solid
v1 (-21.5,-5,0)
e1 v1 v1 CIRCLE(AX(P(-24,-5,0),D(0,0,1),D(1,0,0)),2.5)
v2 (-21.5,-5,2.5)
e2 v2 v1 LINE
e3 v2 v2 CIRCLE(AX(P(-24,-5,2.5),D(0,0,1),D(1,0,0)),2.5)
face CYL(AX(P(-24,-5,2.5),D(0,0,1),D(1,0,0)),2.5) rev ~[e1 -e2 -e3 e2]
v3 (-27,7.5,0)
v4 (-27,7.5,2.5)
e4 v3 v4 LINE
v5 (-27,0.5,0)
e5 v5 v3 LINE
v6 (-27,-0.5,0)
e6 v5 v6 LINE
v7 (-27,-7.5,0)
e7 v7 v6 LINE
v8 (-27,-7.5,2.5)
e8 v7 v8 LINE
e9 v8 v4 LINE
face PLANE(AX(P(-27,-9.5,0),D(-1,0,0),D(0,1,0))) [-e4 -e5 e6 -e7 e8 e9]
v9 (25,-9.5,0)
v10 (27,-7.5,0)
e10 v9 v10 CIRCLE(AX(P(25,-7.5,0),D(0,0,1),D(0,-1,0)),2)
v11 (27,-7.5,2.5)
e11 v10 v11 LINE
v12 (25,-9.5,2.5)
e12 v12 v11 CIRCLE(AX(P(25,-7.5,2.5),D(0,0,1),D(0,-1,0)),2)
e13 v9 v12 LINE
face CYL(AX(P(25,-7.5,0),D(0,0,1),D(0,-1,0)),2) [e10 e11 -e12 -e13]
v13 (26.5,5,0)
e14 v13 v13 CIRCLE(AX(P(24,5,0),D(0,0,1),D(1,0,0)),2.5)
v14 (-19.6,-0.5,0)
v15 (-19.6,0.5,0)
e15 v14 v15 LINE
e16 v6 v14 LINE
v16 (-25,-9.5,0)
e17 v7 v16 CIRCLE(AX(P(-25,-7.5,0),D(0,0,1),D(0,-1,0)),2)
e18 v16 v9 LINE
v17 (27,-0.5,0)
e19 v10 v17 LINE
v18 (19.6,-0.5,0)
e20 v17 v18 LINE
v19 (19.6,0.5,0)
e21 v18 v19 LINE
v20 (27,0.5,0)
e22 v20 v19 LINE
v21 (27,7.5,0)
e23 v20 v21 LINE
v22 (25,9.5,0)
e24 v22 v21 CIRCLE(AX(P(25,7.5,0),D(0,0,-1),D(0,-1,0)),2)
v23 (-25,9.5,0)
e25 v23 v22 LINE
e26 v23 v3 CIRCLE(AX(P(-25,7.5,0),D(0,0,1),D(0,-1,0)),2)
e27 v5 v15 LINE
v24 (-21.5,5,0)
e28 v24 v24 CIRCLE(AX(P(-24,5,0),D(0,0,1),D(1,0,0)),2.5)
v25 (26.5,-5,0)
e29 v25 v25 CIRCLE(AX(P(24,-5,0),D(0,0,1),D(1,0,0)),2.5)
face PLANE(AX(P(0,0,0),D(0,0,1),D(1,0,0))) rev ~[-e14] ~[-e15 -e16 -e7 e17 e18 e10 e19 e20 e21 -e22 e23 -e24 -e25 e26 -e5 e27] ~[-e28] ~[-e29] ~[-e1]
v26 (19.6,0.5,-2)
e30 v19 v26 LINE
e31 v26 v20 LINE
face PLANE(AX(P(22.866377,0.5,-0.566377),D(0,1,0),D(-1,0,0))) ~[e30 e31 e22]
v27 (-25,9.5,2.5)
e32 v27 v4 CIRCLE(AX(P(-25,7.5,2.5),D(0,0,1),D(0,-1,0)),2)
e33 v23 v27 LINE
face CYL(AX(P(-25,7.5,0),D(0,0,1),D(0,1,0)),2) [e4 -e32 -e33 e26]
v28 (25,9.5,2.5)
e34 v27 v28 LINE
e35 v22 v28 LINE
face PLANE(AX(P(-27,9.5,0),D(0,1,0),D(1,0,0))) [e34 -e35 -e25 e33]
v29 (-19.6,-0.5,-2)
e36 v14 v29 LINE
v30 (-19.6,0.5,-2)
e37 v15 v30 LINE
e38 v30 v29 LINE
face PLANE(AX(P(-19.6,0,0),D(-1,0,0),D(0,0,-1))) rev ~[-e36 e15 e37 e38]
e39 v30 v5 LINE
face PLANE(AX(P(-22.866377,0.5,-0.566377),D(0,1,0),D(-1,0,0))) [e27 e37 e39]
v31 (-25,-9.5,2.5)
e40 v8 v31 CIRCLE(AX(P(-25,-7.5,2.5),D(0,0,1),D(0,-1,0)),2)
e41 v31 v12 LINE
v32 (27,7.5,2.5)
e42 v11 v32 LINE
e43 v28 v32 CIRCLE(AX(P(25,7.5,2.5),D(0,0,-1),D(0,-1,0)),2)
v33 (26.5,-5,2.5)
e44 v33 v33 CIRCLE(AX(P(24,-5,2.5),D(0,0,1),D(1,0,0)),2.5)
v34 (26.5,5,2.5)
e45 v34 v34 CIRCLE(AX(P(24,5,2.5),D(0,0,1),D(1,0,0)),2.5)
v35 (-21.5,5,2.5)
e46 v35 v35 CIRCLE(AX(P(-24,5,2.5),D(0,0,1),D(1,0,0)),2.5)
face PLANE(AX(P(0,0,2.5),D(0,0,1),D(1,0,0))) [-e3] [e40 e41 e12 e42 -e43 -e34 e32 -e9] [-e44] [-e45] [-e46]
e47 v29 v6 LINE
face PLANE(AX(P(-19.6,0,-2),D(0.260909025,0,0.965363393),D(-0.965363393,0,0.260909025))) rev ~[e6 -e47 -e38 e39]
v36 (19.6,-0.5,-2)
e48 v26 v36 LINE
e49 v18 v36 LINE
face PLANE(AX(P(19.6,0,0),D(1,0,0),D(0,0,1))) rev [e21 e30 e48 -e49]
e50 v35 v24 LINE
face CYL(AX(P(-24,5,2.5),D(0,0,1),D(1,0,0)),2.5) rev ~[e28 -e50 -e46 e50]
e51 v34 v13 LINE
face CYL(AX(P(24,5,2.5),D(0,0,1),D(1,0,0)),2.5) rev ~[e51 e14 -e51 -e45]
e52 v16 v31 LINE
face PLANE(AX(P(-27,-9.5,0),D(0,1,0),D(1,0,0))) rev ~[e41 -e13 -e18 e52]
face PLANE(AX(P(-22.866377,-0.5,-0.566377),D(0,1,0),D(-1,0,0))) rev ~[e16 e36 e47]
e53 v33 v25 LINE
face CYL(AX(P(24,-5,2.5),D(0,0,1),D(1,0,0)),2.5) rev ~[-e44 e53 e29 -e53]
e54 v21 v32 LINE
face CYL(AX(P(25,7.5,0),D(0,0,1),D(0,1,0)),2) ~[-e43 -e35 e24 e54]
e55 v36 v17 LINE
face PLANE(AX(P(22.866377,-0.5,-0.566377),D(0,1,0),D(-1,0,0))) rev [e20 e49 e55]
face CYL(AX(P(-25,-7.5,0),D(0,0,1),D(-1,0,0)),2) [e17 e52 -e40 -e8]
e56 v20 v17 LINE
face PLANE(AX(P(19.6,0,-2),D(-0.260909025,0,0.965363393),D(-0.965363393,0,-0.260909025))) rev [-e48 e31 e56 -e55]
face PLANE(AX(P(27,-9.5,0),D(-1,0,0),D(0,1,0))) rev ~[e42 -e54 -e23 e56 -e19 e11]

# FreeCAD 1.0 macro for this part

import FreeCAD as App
import Part
import Sketcher
from FreeCAD import Vector


def edges_at(feature, points):
    """Names of the edges that pass closest to the given points."""
    edges = feature.Shape.Edges
    near = lambda p: min(range(len(edges)), key=lambda i: edges[i].distToShape(Part.Vertex(*p))[0])
    return sorted({f"Edge{near(p) + 1}" for p in points})

doc = App.newDocument("Part")
body = doc.addObject("PartDesign::Body", "Body")

sketch1 = body.newObject("Sketcher::SketchObject", "Sketch")
sketch1.AttachmentSupport = (doc.getObject("XY_Plane"), [""])
sketch1.MapMode = "FlatFace"
sketch1.addGeometry(Part.LineSegment(Vector(-27, 10, 0), Vector(-27, -10, 0)), False)
sketch1.addGeometry(Part.LineSegment(Vector(-27, -10, 0), Vector(27, -10, 0)), False)
sketch1.addGeometry(Part.LineSegment(Vector(27, -10, 0), Vector(27, 10, 0)), False)
sketch1.addGeometry(Part.LineSegment(Vector(27, 10, 0), Vector(-27, 10, 0)), False)
sketch1.addConstraint(Sketcher.Constraint("Coincident", 0, 2, 1, 1))
sketch1.addConstraint(Sketcher.Constraint("Coincident", 1, 2, 2, 1))
sketch1.addConstraint(Sketcher.Constraint("Coincident", 2, 2, 3, 1))
sketch1.addConstraint(Sketcher.Constraint("Coincident", 3, 2, 0, 1))
sketch1.addConstraint(Sketcher.Constraint("Vertical", 0))
sketch1.addConstraint(Sketcher.Constraint("Horizontal", 1))
sketch1.addConstraint(Sketcher.Constraint("Vertical", 2))
sketch1.addConstraint(Sketcher.Constraint("Horizontal", 3))
sketch1.addConstraint(Sketcher.Constraint("Symmetric", 0, 2, 2, 2, -1, 1))
sketch1.addConstraint(Sketcher.Constraint("DistanceX", 1, 1, 1, 2, 54.0))
sketch1.addConstraint(Sketcher.Constraint("DistanceY", 0, 2, 0, 1, 19.0))
pad1 = body.newObject("PartDesign::Pad", "Pad")
pad1.Profile = sketch1
pad1.Length = 2.5

sketch2 = body.newObject("Sketcher::SketchObject", "Sketch001")
sketch2.AttachmentSupport = (doc.getObject("XY_Plane"), [""])
sketch2.MapMode = "FlatFace"
sketch2.AttachmentOffset = App.Placement(Vector(0, 0, 2.5), App.Rotation())
sketch2.addGeometry(Part.Circle(Vector(-24, 5, 0), Vector(0, 0, 1), 2.5), False)
sketch2.addGeometry(Part.Circle(Vector(24, 5, 0), Vector(0, 0, 1), 2.5), False)
sketch2.addGeometry(Part.Circle(Vector(24, -5, 0), Vector(0, 0, 1), 2.5), False)
sketch2.addGeometry(Part.Circle(Vector(-24, -5, 0), Vector(0, 0, 1), 2.5), False)
sketch2.addConstraint(Sketcher.Constraint("Equal", 0, 1))
sketch2.addConstraint(Sketcher.Constraint("Equal", 1, 2))
sketch2.addConstraint(Sketcher.Constraint("Equal", 2, 3))
sketch2.addConstraint(Sketcher.Constraint("Symmetric", 0, 3, 2, 3, -1, 1))
sketch2.addConstraint(Sketcher.Constraint("Symmetric", 1, 3, 3, 3, -1, 1))
sketch2.addConstraint(Sketcher.Constraint("Symmetric", 0, 3, 1, 3, -2))
sketch2.addConstraint(Sketcher.Constraint("Diameter", 0, 5.0))
sketch2.addConstraint(Sketcher.Constraint("DistanceX", 0, 3, -1, 1, 24.0))
sketch2.addConstraint(Sketcher.Constraint("DistanceY", -1, 1, 0, 3, 5.0))
pocket1 = body.newObject("PartDesign::Pocket", "Pocket")
pocket1.Profile = sketch2
pocket1.Type = "ThroughAll"
doc.recompute()

fillet = body.newObject("PartDesign::Fillet", "Fillet")
fillet.Base = (pocket1, edges_at(pocket1, [(27, 9.5, 1.25)]))
fillet.Radius = 2
doc.recompute()

fillet2 = body.newObject("PartDesign::Fillet", "Fillet001")
fillet2.Base = (fillet, edges_at(fillet, [(-27, 9.5, 1.25)]))
fillet2.Radius = 2
doc.recompute()

fillet3 = body.newObject("PartDesign::Fillet", "Fillet002")
fillet3.Base = (fillet2, edges_at(fillet2, [(-27, -9.5, 1.25)]))
fillet3.Radius = 2
doc.recompute()

fillet4 = body.newObject("PartDesign::Fillet", "Fillet003")
fillet4.Base = (fillet3, edges_at(fillet3, [(27, -9.5, 1.25)]))
fillet4.Radius = 2

sketch3 = body.newObject("Sketcher::SketchObject", "Sketch002")
sketch3.AttachmentSupport = (doc.getObject("XZ_Plane"), [""])
sketch3.MapMode = "FlatFace"
sketch3.addGeometry(Part.LineSegment(Vector(-19.6, 0, 0), Vector(-27, 0, 0)), False)
sketch3.addGeometry(Part.LineSegment(Vector(-27, 0, 0), Vector(-19.6, -2, 0)), False)
sketch3.addGeometry(Part.LineSegment(Vector(-19.6, -2, 0), Vector(-19.6, 0, 0)), False)
sketch3.addConstraint(Sketcher.Constraint("Coincident", 0, 2, 1, 1))
sketch3.addConstraint(Sketcher.Constraint("Coincident", 1, 2, 2, 1))
sketch3.addConstraint(Sketcher.Constraint("Coincident", 2, 2, 0, 1))
sketch3.addConstraint(Sketcher.Constraint("Horizontal", 0))
sketch3.addConstraint(Sketcher.Constraint("Vertical", 2))
sketch3.addConstraint(Sketcher.Constraint("PointOnObject", 0, 2, -1))
sketch3.addConstraint(Sketcher.Constraint("DistanceY", 2, 1, 2, 2, 2.0))
sketch3.addConstraint(Sketcher.Constraint("DistanceX", 0, 2, 0, 1, 7.4))
sketch3.addConstraint(Sketcher.Constraint("DistanceX", 0, 2, -1, 1, 27.0))
pad2 = body.newObject("PartDesign::Pad", "Pad001")
pad2.Profile = sketch3
pad2.Length = 1
pad2.Midplane = True
doc.recompute()

mirrored = body.newObject("PartDesign::Mirrored", "Mirrored")
mirrored.Originals = [pad2]
mirrored.MirrorPlane = (doc.getObject("YZ_Plane"), [""])
body.Tip = mirrored

doc.recompute()
